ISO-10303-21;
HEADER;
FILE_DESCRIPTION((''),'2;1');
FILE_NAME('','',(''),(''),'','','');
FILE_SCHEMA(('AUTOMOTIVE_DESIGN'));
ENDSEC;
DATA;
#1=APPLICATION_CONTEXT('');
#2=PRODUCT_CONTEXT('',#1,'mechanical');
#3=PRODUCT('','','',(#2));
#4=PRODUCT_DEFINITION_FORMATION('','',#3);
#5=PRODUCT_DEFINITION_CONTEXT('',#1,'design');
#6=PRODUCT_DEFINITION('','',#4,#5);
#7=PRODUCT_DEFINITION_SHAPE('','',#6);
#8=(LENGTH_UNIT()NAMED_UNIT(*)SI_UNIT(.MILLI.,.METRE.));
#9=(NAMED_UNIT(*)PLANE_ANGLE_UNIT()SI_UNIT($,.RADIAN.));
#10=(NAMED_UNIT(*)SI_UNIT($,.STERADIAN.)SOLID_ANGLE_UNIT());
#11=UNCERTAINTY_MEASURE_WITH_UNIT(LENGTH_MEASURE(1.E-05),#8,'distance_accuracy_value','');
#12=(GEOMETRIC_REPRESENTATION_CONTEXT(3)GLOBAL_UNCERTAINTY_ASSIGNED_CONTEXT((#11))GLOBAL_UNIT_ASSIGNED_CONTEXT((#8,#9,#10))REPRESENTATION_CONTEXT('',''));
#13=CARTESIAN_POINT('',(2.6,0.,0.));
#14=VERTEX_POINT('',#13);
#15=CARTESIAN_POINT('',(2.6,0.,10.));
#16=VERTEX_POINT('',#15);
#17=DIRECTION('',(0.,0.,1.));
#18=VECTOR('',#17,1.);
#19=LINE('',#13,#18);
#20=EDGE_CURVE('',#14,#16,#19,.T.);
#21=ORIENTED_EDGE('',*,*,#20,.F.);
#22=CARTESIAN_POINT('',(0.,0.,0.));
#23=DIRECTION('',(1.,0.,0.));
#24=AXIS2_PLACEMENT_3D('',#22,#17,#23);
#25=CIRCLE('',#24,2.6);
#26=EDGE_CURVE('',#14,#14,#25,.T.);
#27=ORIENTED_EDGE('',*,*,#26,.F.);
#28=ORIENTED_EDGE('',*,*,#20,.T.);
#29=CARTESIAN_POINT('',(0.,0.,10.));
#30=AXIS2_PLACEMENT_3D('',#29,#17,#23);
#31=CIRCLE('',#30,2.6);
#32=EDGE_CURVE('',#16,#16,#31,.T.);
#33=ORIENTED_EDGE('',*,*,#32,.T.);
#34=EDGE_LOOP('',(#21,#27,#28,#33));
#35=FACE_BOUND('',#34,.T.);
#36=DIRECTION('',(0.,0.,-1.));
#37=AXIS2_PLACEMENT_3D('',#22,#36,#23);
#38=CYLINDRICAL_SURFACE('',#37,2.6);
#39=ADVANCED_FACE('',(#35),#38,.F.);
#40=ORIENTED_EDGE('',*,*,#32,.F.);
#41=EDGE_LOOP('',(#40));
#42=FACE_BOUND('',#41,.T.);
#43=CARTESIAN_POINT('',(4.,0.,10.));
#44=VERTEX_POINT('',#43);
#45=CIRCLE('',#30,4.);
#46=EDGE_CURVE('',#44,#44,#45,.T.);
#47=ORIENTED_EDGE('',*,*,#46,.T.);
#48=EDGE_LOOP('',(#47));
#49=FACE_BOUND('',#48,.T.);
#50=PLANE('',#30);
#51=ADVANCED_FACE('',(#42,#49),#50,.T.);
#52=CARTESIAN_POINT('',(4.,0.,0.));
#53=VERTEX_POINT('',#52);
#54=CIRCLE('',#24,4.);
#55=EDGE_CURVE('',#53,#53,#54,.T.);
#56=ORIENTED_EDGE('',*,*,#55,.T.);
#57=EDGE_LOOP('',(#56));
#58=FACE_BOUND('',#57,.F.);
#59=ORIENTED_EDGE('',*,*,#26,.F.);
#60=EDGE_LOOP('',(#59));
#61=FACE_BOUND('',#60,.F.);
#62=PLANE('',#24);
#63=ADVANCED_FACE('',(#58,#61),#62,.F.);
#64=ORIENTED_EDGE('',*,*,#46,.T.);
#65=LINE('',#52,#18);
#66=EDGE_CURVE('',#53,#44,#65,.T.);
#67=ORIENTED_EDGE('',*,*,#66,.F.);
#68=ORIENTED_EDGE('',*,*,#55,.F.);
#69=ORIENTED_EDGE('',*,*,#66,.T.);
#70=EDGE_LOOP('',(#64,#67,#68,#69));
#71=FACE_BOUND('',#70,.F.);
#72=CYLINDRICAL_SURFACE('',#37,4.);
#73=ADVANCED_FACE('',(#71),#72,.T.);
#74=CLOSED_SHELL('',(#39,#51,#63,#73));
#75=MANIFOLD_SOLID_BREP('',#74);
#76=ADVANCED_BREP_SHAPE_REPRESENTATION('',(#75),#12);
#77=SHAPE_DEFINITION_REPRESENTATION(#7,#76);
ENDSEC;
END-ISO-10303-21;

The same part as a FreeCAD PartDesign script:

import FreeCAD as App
import Part
import Sketcher
from FreeCAD import Vector

doc = App.newDocument("Part")
body = doc.addObject("PartDesign::Body", "Body")

sketch1 = doc.addObject("Sketcher::SketchObject", "Sketch")
body.addObject(sketch1)
sketch1.AttachmentSupport = (doc.XY_Plane, [""])
sketch1.MapMode = "FlatFace"
sketch1.addGeometry([
    Part.Circle(Vector(0, 0, 0), Vector(0, 0, 1), 4),
    Part.Circle(Vector(0, 0, 0), Vector(0, 0, 1), 2.6),
], False)
sketch1.addConstraint([
    Sketcher.Constraint("Coincident", 0, 3, -1, 1),
    Sketcher.Constraint("Coincident", 1, 3, -1, 1),
    Sketcher.Constraint("Diameter", 0, 8.0),
    Sketcher.Constraint("Diameter", 1, 5.2),
])
pad1 = doc.addObject("PartDesign::Pad", "Pad")
body.addObject(pad1)
pad1.Profile = sketch1
pad1.Length = 10

doc.recompute()
